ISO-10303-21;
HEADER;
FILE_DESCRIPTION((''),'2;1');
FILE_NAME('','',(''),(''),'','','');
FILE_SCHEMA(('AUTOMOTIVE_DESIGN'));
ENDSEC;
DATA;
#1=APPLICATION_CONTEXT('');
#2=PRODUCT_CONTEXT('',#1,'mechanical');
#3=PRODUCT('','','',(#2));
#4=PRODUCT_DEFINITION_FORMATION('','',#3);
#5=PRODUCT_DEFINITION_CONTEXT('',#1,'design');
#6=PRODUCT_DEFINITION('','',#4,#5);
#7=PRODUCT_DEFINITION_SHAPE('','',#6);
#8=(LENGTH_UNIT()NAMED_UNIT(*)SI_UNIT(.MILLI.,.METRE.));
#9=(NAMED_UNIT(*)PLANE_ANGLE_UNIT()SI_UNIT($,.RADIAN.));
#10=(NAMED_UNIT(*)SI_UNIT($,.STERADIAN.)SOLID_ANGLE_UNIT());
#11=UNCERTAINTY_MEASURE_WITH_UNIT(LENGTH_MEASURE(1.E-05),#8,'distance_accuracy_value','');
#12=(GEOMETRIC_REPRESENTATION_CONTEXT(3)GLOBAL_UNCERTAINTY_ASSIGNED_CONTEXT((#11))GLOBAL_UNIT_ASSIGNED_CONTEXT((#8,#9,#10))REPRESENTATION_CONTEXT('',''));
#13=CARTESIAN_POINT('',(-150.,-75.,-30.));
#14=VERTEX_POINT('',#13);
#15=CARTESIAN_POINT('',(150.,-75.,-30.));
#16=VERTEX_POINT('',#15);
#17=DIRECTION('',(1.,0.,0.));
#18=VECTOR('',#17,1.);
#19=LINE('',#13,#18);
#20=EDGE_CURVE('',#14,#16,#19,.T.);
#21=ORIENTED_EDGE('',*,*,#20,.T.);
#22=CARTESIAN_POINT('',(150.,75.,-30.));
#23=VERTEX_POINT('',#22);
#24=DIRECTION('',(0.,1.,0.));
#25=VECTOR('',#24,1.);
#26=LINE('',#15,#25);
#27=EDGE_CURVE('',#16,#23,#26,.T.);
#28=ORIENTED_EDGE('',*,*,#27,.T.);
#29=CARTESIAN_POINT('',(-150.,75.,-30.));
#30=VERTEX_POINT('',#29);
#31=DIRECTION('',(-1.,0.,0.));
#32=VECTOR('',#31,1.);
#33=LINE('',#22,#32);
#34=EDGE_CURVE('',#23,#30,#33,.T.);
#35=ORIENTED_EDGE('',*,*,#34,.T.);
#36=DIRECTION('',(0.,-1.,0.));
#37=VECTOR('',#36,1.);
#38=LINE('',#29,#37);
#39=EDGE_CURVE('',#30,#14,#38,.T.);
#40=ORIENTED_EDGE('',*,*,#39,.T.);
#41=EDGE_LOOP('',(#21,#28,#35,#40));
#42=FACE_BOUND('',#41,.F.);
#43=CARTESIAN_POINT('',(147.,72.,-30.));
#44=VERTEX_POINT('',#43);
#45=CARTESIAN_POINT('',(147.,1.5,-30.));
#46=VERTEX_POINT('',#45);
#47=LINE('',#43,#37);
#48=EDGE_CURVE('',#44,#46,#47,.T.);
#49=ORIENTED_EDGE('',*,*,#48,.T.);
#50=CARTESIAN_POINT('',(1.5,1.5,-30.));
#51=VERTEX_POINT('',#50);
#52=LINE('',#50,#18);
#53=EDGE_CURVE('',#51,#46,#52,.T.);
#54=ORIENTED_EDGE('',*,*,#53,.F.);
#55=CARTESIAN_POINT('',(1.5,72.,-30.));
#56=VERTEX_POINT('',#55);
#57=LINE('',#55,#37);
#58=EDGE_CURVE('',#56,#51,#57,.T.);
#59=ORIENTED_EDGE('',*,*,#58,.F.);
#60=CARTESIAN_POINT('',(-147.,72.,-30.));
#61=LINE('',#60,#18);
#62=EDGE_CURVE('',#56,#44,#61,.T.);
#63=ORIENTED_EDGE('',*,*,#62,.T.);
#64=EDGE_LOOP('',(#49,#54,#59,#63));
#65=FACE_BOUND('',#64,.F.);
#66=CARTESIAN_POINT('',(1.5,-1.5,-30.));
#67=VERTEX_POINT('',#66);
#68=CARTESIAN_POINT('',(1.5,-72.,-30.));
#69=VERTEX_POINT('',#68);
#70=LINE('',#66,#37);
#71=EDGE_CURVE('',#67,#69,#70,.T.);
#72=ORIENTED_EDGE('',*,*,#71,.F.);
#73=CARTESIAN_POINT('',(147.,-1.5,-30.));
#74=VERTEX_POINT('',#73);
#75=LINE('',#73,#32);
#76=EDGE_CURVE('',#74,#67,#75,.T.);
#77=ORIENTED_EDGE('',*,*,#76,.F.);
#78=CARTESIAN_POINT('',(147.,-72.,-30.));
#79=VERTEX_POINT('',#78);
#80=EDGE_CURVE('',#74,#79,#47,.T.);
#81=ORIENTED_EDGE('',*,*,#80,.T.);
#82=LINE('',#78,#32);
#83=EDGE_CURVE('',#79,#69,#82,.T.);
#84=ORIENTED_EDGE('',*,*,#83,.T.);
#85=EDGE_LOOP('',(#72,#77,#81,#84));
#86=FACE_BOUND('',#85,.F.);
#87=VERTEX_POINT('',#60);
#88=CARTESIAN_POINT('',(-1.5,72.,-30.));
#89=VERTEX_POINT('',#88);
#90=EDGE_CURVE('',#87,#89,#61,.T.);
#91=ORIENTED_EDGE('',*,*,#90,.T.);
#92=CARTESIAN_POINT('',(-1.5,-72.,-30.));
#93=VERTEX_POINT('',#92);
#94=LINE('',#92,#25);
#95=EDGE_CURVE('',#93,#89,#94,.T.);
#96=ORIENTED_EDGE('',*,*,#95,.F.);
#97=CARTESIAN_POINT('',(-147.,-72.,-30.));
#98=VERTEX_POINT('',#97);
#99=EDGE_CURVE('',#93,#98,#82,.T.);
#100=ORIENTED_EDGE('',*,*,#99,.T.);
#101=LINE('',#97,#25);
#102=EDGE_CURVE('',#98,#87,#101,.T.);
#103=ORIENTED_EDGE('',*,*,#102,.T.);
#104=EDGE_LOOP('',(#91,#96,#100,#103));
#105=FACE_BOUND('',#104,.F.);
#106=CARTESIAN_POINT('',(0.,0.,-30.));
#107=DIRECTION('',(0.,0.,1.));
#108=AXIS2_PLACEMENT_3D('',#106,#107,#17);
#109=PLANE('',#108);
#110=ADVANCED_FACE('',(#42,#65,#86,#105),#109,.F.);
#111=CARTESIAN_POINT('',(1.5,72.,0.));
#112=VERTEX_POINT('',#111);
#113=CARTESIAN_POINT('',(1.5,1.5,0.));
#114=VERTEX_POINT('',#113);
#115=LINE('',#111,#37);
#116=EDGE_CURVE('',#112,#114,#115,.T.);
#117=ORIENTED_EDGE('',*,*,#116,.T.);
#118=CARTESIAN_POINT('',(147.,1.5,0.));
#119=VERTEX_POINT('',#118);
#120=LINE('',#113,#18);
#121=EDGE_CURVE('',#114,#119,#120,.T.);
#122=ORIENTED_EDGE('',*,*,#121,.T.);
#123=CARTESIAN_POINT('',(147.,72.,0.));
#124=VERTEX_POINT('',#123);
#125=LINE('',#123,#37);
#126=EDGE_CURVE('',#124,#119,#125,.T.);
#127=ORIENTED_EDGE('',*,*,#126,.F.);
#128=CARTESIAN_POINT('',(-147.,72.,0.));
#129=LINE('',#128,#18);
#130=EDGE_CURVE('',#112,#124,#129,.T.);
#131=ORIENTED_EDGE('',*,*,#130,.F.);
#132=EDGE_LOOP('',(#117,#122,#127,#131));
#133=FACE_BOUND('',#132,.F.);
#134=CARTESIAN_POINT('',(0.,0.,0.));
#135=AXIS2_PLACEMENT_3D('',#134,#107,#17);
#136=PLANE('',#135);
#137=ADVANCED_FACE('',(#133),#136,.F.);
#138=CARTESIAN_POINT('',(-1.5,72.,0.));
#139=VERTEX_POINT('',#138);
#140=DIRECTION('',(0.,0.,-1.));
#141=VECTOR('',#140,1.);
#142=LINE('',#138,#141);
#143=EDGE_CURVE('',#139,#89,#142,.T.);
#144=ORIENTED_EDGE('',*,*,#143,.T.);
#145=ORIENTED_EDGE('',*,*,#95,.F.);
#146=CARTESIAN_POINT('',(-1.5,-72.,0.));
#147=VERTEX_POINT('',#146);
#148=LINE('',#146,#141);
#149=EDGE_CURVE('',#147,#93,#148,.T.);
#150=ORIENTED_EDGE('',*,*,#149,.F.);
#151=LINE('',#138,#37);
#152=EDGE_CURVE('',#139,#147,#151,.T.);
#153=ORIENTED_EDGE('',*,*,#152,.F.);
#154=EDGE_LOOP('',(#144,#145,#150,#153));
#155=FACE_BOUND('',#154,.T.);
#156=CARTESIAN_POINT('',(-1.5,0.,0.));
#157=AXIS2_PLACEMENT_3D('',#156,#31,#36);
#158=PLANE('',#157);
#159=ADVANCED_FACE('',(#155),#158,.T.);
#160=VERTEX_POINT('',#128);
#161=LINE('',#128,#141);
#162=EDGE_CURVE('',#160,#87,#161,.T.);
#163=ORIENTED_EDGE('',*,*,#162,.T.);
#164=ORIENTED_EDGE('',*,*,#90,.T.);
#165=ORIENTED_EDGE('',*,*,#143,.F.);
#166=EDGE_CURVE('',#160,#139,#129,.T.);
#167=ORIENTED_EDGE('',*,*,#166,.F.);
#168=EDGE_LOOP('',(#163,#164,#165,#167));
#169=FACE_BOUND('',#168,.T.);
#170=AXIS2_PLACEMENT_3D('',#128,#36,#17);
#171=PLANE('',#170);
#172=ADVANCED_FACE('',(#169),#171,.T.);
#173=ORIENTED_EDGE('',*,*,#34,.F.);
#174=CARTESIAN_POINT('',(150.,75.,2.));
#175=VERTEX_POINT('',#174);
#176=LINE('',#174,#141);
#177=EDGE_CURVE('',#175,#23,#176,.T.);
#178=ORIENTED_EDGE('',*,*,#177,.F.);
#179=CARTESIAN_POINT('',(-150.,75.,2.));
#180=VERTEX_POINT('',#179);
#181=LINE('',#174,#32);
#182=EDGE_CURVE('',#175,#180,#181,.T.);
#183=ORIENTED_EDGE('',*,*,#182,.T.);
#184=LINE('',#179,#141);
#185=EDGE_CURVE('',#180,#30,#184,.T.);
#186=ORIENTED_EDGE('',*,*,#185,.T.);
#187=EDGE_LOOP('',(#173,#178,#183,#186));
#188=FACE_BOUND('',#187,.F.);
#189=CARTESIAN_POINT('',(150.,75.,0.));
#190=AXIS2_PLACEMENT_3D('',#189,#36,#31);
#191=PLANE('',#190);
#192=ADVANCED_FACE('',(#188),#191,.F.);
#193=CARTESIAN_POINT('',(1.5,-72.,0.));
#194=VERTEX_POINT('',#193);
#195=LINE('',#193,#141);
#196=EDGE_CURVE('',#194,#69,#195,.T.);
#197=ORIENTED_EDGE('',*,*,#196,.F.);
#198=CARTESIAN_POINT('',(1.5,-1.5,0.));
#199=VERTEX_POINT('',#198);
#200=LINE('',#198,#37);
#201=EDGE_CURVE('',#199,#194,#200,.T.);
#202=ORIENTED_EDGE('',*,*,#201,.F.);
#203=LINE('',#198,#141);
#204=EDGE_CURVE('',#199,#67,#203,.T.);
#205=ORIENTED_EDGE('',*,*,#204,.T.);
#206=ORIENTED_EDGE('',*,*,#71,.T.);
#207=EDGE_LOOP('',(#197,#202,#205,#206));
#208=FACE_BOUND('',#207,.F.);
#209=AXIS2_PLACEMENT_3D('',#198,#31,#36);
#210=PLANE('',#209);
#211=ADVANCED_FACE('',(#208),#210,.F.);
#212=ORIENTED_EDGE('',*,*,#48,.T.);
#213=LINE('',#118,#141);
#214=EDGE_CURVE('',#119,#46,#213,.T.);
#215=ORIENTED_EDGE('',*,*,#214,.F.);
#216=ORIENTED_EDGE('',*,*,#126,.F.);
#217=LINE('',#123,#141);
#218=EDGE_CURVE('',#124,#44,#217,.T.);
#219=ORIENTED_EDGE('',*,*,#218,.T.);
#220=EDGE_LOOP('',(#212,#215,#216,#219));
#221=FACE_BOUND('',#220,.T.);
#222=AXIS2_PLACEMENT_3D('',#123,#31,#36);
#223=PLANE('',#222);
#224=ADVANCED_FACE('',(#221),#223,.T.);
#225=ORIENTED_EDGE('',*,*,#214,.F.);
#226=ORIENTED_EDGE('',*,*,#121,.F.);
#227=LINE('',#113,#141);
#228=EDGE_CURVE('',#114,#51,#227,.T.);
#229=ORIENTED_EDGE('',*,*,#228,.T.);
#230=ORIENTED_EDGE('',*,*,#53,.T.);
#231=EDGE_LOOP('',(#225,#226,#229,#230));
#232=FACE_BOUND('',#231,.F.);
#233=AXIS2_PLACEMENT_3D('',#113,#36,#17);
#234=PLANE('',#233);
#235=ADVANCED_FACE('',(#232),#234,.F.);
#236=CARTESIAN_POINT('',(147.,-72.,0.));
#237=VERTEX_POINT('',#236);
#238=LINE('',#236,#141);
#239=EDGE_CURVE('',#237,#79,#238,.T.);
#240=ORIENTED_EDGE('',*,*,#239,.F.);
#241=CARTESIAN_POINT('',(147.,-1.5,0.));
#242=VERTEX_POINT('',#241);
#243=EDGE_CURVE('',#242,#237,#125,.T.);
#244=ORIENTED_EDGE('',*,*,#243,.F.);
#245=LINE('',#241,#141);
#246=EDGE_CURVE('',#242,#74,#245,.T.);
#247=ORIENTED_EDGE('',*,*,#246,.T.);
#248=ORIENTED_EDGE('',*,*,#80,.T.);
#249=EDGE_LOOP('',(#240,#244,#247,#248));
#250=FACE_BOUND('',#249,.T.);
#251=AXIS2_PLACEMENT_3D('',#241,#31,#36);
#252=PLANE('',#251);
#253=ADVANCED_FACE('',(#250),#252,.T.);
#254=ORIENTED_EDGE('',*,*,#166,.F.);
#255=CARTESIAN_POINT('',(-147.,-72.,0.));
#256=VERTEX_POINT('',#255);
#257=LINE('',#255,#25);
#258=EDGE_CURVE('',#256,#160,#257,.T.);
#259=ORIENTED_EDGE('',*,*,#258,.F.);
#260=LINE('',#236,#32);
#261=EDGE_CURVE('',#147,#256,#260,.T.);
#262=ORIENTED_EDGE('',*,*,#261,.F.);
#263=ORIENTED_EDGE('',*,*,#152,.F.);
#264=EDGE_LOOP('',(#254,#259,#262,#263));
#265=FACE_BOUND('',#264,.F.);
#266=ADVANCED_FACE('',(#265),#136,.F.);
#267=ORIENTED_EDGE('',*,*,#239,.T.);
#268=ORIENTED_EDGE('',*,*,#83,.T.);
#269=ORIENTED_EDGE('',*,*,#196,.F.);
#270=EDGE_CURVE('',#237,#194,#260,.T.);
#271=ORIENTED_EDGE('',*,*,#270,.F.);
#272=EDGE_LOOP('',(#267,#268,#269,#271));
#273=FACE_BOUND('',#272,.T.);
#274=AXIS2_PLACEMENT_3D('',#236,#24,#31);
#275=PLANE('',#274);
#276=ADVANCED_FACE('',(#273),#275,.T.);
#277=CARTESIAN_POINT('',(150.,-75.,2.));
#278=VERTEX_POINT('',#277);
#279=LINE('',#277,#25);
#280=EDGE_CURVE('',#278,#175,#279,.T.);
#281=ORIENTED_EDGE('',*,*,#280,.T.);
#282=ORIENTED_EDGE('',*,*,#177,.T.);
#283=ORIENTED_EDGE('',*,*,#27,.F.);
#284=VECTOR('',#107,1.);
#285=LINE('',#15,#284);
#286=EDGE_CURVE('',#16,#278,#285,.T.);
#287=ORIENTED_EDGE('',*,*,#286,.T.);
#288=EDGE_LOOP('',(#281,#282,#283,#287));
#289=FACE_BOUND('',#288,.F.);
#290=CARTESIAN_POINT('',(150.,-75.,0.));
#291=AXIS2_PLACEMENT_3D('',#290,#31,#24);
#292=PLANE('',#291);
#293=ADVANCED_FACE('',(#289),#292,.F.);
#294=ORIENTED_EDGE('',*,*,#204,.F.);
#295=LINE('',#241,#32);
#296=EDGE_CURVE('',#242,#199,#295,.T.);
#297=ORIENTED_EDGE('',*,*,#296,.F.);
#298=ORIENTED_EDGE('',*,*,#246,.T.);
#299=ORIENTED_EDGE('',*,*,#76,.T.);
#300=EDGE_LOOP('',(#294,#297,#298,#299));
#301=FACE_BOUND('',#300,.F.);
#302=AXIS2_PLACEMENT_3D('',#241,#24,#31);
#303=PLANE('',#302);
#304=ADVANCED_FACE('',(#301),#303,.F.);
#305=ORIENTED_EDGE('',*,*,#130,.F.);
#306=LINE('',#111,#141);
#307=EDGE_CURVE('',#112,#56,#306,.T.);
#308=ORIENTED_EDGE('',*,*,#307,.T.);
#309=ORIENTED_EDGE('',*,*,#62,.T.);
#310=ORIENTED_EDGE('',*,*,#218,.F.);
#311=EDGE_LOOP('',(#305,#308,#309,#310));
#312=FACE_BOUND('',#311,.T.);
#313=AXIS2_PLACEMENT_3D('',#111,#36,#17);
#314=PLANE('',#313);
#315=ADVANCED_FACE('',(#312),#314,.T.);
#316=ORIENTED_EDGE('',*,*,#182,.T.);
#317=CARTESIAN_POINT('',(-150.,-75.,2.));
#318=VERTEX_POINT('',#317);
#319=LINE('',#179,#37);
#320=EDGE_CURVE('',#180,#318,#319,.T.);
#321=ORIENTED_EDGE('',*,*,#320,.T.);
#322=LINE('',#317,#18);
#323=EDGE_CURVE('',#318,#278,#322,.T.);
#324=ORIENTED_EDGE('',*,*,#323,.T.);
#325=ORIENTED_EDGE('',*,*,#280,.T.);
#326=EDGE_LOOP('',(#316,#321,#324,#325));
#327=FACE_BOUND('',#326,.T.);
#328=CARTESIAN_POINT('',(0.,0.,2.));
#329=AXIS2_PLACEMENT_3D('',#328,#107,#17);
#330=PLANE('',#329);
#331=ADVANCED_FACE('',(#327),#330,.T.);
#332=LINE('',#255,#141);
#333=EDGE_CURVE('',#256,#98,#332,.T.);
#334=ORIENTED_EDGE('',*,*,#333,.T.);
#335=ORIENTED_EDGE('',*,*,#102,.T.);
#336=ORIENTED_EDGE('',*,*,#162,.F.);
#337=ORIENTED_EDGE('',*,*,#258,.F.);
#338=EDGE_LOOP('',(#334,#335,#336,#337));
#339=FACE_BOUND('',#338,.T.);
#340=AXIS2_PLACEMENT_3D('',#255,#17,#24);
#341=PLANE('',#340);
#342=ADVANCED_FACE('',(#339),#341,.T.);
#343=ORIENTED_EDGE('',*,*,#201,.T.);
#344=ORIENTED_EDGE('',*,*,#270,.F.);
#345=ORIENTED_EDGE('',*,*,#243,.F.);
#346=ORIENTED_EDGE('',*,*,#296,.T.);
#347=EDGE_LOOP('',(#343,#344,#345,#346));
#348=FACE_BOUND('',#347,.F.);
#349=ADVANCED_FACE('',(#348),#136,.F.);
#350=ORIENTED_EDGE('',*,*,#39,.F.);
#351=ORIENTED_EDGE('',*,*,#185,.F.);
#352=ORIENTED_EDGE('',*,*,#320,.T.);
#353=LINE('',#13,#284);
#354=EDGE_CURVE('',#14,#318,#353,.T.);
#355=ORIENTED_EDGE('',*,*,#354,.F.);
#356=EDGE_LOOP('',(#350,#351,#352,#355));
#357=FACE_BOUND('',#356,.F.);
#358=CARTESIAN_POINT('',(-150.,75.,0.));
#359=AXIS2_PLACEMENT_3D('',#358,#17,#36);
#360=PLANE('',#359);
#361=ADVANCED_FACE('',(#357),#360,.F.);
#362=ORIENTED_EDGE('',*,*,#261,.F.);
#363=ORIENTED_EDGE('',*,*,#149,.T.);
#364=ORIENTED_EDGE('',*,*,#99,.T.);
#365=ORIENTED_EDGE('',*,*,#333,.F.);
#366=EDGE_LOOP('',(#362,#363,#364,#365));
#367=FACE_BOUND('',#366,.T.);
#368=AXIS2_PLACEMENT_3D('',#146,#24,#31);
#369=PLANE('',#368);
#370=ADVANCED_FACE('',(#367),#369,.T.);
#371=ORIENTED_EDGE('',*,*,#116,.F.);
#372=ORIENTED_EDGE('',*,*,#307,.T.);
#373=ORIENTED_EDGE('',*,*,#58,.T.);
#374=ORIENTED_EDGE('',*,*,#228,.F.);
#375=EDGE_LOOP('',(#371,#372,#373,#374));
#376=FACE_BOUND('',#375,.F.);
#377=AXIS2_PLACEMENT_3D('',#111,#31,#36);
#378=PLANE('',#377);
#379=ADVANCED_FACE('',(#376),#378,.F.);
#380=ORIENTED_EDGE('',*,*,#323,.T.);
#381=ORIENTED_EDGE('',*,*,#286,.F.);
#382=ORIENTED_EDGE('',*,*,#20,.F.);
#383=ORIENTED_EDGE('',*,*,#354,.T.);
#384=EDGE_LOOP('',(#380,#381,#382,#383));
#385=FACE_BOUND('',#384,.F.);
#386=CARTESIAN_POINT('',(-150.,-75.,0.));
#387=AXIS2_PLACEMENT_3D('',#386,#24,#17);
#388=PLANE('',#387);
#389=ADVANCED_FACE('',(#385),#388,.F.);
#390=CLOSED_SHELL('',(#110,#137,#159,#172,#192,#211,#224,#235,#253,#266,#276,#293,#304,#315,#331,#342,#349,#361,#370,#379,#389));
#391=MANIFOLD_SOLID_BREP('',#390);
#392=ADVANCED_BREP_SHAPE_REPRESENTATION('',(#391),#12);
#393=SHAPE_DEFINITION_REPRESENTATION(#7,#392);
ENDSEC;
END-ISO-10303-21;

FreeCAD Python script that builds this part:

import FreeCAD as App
import Part
import Sketcher
Q = App.Units.Quantity


def add_polygon(sketch, points):
    """Adds a closed chain of lines whose ends are joined by coincident constraints."""
    first, n = sketch.GeometryCount, len(points)
    for a, b in zip(points, points[1:] + points[:1]):
        sketch.addGeometry(Part.LineSegment(App.Vector(*a, 0), App.Vector(*b, 0)), False)
    for i in range(n):
        sketch.addConstraint(Sketcher.Constraint("Coincident", first + i, 2, first + (i + 1) % n, 1))

doc = App.newDocument("Part")
params = doc.addObject("Spreadsheet::Sheet", "Params")
for row, (alias, value) in enumerate([
    ("sketch1_width", "300 mm"),
    ("sketch1_height", "150 mm"),
    ("pad1_length", "2 mm"),
    ("sketch2_width", "300 mm"),
    ("sketch2_height", "150 mm"),
    ("pad2_length", "30 mm"),
], start=1):
    params.set(f"A{row}", alias)
    params.set(f"B{row}", "=" + value)
    params.setAlias(f"B{row}", alias)

body = doc.addObject("PartDesign::Body", "Body")

# Sketch on XY plane
sketch1 = doc.addObject("Sketcher::SketchObject", "Sketch")
body.addObject(sketch1)
sketch1.AttachmentSupport = (doc.XY_Plane, [""])
sketch1.MapMode = "FlatFace"
add_polygon(sketch1, [(-150, 75), (-150, -75), (150, -75), (150, 75)])  # lines 0-3
sketch1.addConstraint([
    Sketcher.Constraint("Vertical", 0),
    Sketcher.Constraint("Horizontal", 1),
    Sketcher.Constraint("Vertical", 2),
    Sketcher.Constraint("Horizontal", 3),
    Sketcher.Constraint("Symmetric", 0, 2, 2, 2, -1, 1),
    Sketcher.Constraint("DistanceX", 1, 1, 1, 2, Q("300 mm")),
    Sketcher.Constraint("DistanceY", 0, 2, 0, 1, Q("150 mm")),
])
sketch1.setExpression("Constraints[9]", "Params.sketch1_width")
sketch1.setExpression("Constraints[10]", "Params.sketch1_height")
pad1 = doc.addObject("PartDesign::Pad", "Pad")
body.addObject(pad1)
pad1.Profile = sketch1
pad1.setExpression("Length", "Params.pad1_length")

# Sketch on XY plane
sketch2 = doc.addObject("Sketcher::SketchObject", "Sketch001")
body.addObject(sketch2)
sketch2.AttachmentSupport = (doc.XY_Plane, [""])
sketch2.MapMode = "FlatFace"
add_polygon(sketch2, [(-150, 75), (-150, -75), (150, -75), (150, 75)])  # lines 0-3
add_polygon(sketch2, [(-147, -72), (-147, 72), (-1.5, 72), (-1.5, -72)])  # lines 4-7
add_polygon(sketch2, [(147, -72), (1.5, -72), (1.5, -1.5), (147, -1.5)])  # lines 8-11
add_polygon(sketch2, [(147, 72), (147, 1.5), (1.5, 1.5), (1.5, 72)])  # lines 12-15
sketch2.addConstraint([
    Sketcher.Constraint("Vertical", 0),
    Sketcher.Constraint("Horizontal", 1),
    Sketcher.Constraint("Vertical", 2),
    Sketcher.Constraint("Horizontal", 3),
    Sketcher.Constraint("Vertical", 4),
    Sketcher.Constraint("Horizontal", 5),
    Sketcher.Constraint("Vertical", 6),
    Sketcher.Constraint("Horizontal", 7),
    Sketcher.Constraint("Horizontal", 8),
    Sketcher.Constraint("Vertical", 9),
    Sketcher.Constraint("Horizontal", 10),
    Sketcher.Constraint("Vertical", 11),
    Sketcher.Constraint("Vertical", 12),
    Sketcher.Constraint("Horizontal", 13),
    Sketcher.Constraint("Vertical", 14),
    Sketcher.Constraint("Horizontal", 15),
    Sketcher.Constraint("Symmetric", 0, 2, 2, 2, -1, 1),
    Sketcher.Constraint("Symmetric", 5, 2, 8, 2, -1, 1),
    Sketcher.Constraint("Symmetric", 6, 2, 14, 2, -1, 1),
    Sketcher.Constraint("Symmetric", 7, 2, 11, 2, -2),
    Sketcher.Constraint("Symmetric", 10, 2, 12, 2, -1),
    Sketcher.Constraint("DistanceX", 1, 1, 1, 2, Q("300 mm")),
    Sketcher.Constraint("DistanceY", 0, 2, 0, 1, Q("150 mm")),
    Sketcher.Constraint("DistanceX", 3, 2, 4, 2, Q("3 mm")),
    Sketcher.Constraint("DistanceY", 4, 2, 3, 2, Q("3 mm")),
    Sketcher.Constraint("DistanceX", 6, 2, 8, 2, Q("3 mm")),
    Sketcher.Constraint("DistanceY", 10, 2, 12, 2, Q("3 mm")),
])
sketch2.setExpression("Constraints[37]", "Params.sketch2_width")
sketch2.setExpression("Constraints[38]", "Params.sketch2_height")
pad2 = doc.addObject("PartDesign::Pad", "Pad001")
body.addObject(pad2)
pad2.Profile = sketch2
pad2.setExpression("Length", "Params.pad2_length")
pad2.Reversed = True

doc.recompute()
